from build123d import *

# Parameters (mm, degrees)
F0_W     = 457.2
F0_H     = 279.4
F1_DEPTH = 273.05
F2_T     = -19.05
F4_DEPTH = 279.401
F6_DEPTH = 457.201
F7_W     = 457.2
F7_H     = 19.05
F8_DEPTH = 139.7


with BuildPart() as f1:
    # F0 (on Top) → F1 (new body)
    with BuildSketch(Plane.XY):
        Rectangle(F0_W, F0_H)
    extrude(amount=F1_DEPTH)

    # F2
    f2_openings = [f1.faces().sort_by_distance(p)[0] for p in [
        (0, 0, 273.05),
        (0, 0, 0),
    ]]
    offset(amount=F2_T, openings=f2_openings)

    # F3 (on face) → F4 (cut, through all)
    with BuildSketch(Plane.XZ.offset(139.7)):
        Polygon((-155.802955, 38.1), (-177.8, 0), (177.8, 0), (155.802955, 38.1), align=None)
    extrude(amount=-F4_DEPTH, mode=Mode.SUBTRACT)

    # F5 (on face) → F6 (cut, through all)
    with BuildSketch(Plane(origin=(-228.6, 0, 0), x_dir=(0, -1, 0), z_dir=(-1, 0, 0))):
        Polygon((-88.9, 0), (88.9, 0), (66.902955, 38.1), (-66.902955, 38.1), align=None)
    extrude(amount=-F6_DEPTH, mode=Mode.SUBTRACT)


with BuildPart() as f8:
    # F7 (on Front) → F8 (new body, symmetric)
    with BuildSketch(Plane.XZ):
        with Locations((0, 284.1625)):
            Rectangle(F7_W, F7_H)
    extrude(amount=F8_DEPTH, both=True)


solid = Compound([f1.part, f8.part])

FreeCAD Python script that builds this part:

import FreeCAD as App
import Part
import Sketcher

V = App.Vector
Q = App.Units.Quantity


def faces_at(feature, points):
    """Names of the faces that lie closest to the given points."""
    faces = feature.Shape.Faces
    near = lambda p: min(range(len(faces)), key=lambda i: faces[i].distToShape(Part.Vertex(*p))[0])
    return sorted({f"Face{near(p) + 1}" for p in points})

doc = App.newDocument("Part")
body = doc.addObject("PartDesign::Body", "Body")

# Sketch on XY plane
sketch1 = body.newObject("Sketcher::SketchObject", "Sketch")
sketch1.AttachmentSupport = (doc.getObject("XY_Plane"), [""])
sketch1.MapMode = "FlatFace"
sketch1.addGeometry(Part.LineSegment(V(-229, 140, 0), V(-229, -140, 0)), False)
sketch1.addGeometry(Part.LineSegment(V(-229, -140, 0), V(229, -140, 0)), False)
sketch1.addGeometry(Part.LineSegment(V(229, -140, 0), V(229, 140, 0)), False)
sketch1.addGeometry(Part.LineSegment(V(229, 140, 0), V(-229, 140, 0)), False)
sketch1.addConstraint(Sketcher.Constraint("Coincident", 0, 2, 1, 1))
sketch1.addConstraint(Sketcher.Constraint("Coincident", 1, 2, 2, 1))
sketch1.addConstraint(Sketcher.Constraint("Coincident", 2, 2, 3, 1))
sketch1.addConstraint(Sketcher.Constraint("Coincident", 3, 2, 0, 1))
sketch1.addConstraint(Sketcher.Constraint("Vertical", 0))
sketch1.addConstraint(Sketcher.Constraint("Horizontal", 1))
sketch1.addConstraint(Sketcher.Constraint("Vertical", 2))
sketch1.addConstraint(Sketcher.Constraint("Horizontal", 3))
sketch1.addConstraint(Sketcher.Constraint("Symmetric", 0, 2, 2, 2, -1, 1))
sketch1.addConstraint(Sketcher.Constraint("DistanceX", 1, 1, 1, 2, Q("18 in")))
sketch1.addConstraint(Sketcher.Constraint("DistanceY", 0, 2, 0, 1, Q("11 in")))
pad1 = body.newObject("PartDesign::Pad", "Pad")
pad1.Profile = sketch1
pad1.Length = Q("10.75 in")
doc.recompute()

thickness = body.newObject("PartDesign::Thickness", "Thickness")
thickness.Base = (pad1, faces_at(pad1, [(0, 0, 273.05), (0, 0, 0)]))
thickness.Value = Q("0.75 in")
thickness.Reversed = True
thickness.Join = "Arc"

# Sketch on XZ plane
sketch2 = body.newObject("Sketcher::SketchObject", "Sketch001")
sketch2.AttachmentSupport = (doc.getObject("XZ_Plane"), [""])
sketch2.MapMode = "FlatFace"
sketch2.AttachmentOffset = App.Placement(V(0, 0, 5.5 * 25.4), App.Rotation())
sketch2.addGeometry(Part.LineSegment(V(-156, 38, 0), V(-178, 0, 0)), False)
sketch2.addGeometry(Part.LineSegment(V(-178, 0, 0), V(178, 0, 0)), False)
sketch2.addGeometry(Part.LineSegment(V(178, 0, 0), V(156, 38, 0)), False)
sketch2.addGeometry(Part.LineSegment(V(156, 38, 0), V(-156, 38, 0)), False)
sketch2.addConstraint(Sketcher.Constraint("Coincident", 0, 2, 1, 1))
sketch2.addConstraint(Sketcher.Constraint("Coincident", 1, 2, 2, 1))
sketch2.addConstraint(Sketcher.Constraint("Coincident", 2, 2, 3, 1))
sketch2.addConstraint(Sketcher.Constraint("Coincident", 3, 2, 0, 1))
sketch2.addConstraint(Sketcher.Constraint("Horizontal", 1))
sketch2.addConstraint(Sketcher.Constraint("Horizontal", 3))
sketch2.addConstraint(Sketcher.Constraint("Symmetric", 0, 2, 1, 2, -1, 1))
sketch2.addConstraint(Sketcher.Constraint("Equal", 0, 2))
sketch2.addConstraint(Sketcher.Constraint("DistanceX", 1, 1, 1, 2, Q("14 in")))
sketch2.addConstraint(Sketcher.Constraint("Angle", 0, Q("-120 deg")))
sketch2.addConstraint(Sketcher.Constraint("DistanceY", -1, 1, 2, 2, Q("1.5 in")))
pocket1 = body.newObject("PartDesign::Pocket", "Pocket")
pocket1.Profile = sketch2
pocket1.Type = "ThroughAll"

# Sketch on YZ plane
sketch3 = body.newObject("Sketcher::SketchObject", "Sketch002")
sketch3.AttachmentSupport = (doc.getObject("YZ_Plane"), [""])
sketch3.MapMode = "FlatFace"
sketch3.AttachmentOffset = App.Placement(V(0, 0, -9 * 25.4), App.Rotation())
sketch3.addGeometry(Part.LineSegment(V(89, 0, 0), V(-89, 0, 0)), False)
sketch3.addGeometry(Part.LineSegment(V(-89, 0, 0), V(-67, 38, 0)), False)
sketch3.addGeometry(Part.LineSegment(V(-67, 38, 0), V(67, 38, 0)), False)
sketch3.addGeometry(Part.LineSegment(V(67, 38, 0), V(89, 0, 0)), False)
sketch3.addConstraint(Sketcher.Constraint("Coincident", 0, 2, 1, 1))
sketch3.addConstraint(Sketcher.Constraint("Coincident", 1, 2, 2, 1))
sketch3.addConstraint(Sketcher.Constraint("Coincident", 2, 2, 3, 1))
sketch3.addConstraint(Sketcher.Constraint("Coincident", 3, 2, 0, 1))
sketch3.addConstraint(Sketcher.Constraint("Horizontal", 0))
sketch3.addConstraint(Sketcher.Constraint("Horizontal", 2))
sketch3.addConstraint(Sketcher.Constraint("Symmetric", 0, 2, 3, 2, -1, 1))
sketch3.addConstraint(Sketcher.Constraint("Equal", 1, 3))
sketch3.addConstraint(Sketcher.Constraint("DistanceX", 0, 2, 0, 1, Q("7 in")))
sketch3.addConstraint(Sketcher.Constraint("Angle", 1, Q("60 deg")))
sketch3.addConstraint(Sketcher.Constraint("DistanceY", -1, 1, 1, 2, Q("1.5 in")))
pocket2 = body.newObject("PartDesign::Pocket", "Pocket001")
pocket2.Profile = sketch3
pocket2.Type = "ThroughAll"
pocket2.Reversed = True
body2 = doc.addObject("PartDesign::Body", "Body001")

# Sketch on XZ plane
sketch4 = body2.newObject("Sketcher::SketchObject", "Sketch003")
sketch4.AttachmentSupport = (doc.getObject("XZ_Plane001"), [""])
sketch4.MapMode = "FlatFace"
sketch4.addGeometry(Part.LineSegment(V(-229, 294, 0), V(-229, 275, 0)), False)
sketch4.addGeometry(Part.LineSegment(V(-229, 275, 0), V(229, 275, 0)), False)
sketch4.addGeometry(Part.LineSegment(V(229, 275, 0), V(229, 294, 0)), False)
sketch4.addGeometry(Part.LineSegment(V(229, 294, 0), V(-229, 294, 0)), False)
sketch4.addConstraint(Sketcher.Constraint("Coincident", 0, 2, 1, 1))
sketch4.addConstraint(Sketcher.Constraint("Coincident", 1, 2, 2, 1))
sketch4.addConstraint(Sketcher.Constraint("Coincident", 2, 2, 3, 1))
sketch4.addConstraint(Sketcher.Constraint("Coincident", 3, 2, 0, 1))
sketch4.addConstraint(Sketcher.Constraint("Vertical", 0))
sketch4.addConstraint(Sketcher.Constraint("Horizontal", 1))
sketch4.addConstraint(Sketcher.Constraint("Vertical", 2))
sketch4.addConstraint(Sketcher.Constraint("Horizontal", 3))
sketch4.addConstraint(Sketcher.Constraint("DistanceX", 1, 1, 1, 2, Q("18 in")))
sketch4.addConstraint(Sketcher.Constraint("DistanceX", 0, 2, -1, 1, Q("9 in")))
sketch4.addConstraint(Sketcher.Constraint("DistanceY", 0, 2, 0, 1, Q("0.75 in")))
sketch4.addConstraint(Sketcher.Constraint("DistanceY", -1, 1, 0, 2, Q("10.8125 in")))
pad2 = body2.newObject("PartDesign::Pad", "Pad001")
pad2.Profile = sketch4
pad2.Length = Q("11 in")
pad2.Midplane = True

doc.recompute()
